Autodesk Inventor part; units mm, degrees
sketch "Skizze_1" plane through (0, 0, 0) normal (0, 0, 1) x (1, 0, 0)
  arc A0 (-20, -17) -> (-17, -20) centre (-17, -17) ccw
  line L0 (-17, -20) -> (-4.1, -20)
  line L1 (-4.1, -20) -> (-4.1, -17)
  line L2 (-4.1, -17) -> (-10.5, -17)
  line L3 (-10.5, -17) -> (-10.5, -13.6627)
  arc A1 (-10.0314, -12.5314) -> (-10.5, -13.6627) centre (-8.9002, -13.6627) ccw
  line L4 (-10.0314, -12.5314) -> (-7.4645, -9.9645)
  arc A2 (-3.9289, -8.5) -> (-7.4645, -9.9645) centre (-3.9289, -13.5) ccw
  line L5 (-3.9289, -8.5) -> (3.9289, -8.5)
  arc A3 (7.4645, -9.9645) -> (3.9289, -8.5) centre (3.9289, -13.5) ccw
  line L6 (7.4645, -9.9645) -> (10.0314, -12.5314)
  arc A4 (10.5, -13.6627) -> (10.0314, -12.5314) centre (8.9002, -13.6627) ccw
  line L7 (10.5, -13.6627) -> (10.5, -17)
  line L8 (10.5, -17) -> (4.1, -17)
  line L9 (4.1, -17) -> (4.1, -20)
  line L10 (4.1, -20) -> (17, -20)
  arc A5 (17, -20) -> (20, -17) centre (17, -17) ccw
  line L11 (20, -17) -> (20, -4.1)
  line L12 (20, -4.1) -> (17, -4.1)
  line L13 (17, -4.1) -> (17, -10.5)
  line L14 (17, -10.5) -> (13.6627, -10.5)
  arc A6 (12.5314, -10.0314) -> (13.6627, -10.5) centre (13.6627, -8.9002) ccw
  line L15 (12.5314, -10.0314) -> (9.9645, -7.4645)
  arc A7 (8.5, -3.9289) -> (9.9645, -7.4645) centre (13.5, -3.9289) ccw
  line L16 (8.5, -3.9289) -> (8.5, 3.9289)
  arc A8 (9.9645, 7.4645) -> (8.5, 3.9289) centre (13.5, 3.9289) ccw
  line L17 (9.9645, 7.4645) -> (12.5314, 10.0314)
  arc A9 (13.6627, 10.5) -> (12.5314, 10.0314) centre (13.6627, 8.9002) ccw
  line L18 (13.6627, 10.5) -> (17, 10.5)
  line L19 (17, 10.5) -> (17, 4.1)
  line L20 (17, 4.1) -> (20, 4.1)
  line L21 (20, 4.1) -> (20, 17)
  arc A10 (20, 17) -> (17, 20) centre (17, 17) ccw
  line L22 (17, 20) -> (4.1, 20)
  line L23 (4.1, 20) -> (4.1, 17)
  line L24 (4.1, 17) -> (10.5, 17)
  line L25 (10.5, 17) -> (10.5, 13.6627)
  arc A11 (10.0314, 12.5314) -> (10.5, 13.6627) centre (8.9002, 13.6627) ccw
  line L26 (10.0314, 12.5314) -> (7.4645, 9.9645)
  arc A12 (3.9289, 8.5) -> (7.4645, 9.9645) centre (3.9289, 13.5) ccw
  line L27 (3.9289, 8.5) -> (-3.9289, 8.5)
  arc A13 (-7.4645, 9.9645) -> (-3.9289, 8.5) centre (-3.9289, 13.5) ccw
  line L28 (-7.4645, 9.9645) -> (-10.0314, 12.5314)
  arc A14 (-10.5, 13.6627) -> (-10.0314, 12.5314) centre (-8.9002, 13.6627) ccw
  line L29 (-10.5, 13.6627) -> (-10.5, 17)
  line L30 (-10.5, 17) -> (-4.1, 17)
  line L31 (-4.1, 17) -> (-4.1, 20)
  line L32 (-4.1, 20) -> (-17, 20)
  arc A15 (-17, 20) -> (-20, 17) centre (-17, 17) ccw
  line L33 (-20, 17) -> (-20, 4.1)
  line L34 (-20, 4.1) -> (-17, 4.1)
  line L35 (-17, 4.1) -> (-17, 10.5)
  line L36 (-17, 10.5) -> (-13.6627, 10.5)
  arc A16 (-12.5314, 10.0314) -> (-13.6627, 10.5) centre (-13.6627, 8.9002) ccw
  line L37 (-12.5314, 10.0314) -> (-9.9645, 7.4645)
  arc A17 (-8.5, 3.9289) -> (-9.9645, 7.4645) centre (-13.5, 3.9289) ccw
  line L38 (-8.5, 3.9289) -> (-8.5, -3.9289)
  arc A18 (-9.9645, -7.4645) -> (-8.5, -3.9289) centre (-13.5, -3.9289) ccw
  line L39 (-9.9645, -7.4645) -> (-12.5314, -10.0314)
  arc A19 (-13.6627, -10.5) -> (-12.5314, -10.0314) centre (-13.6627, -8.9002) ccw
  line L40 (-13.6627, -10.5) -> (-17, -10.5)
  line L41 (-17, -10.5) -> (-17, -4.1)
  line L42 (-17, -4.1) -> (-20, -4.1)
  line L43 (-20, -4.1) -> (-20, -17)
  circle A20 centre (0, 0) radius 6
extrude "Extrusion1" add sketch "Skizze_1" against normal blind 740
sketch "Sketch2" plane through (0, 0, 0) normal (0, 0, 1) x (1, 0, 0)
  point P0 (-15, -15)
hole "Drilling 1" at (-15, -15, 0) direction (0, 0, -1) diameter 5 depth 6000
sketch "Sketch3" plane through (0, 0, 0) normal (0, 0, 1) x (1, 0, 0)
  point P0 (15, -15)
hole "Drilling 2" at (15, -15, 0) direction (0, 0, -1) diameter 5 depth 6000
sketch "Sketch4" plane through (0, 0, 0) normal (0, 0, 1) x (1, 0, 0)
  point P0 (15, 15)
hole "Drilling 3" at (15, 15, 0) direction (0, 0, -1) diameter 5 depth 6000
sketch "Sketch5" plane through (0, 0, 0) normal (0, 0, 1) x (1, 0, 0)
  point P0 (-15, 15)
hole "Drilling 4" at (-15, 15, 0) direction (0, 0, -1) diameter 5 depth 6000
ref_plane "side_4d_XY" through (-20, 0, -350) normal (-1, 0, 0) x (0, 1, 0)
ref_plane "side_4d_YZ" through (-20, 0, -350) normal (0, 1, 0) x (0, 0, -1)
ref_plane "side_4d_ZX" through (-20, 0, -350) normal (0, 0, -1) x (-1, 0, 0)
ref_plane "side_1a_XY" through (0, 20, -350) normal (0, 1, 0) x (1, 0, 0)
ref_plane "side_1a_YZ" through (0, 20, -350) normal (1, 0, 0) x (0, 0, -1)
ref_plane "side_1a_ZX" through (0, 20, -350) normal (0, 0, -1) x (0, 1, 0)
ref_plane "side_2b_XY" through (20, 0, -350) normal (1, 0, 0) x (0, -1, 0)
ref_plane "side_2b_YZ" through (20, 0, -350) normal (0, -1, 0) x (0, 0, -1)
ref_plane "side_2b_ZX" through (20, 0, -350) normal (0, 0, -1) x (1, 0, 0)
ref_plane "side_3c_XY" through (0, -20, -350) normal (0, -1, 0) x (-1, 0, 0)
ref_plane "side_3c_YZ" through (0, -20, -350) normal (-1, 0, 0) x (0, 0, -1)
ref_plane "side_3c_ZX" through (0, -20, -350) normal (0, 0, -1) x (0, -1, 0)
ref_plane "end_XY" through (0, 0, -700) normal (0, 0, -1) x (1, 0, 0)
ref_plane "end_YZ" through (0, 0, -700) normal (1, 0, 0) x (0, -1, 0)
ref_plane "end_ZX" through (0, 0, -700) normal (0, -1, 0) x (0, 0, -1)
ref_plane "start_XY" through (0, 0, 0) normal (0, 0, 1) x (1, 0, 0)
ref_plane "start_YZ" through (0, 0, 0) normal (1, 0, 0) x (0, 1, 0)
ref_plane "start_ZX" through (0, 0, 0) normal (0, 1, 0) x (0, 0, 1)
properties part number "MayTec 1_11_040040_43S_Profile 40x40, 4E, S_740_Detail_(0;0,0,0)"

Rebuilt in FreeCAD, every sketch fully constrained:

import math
import FreeCAD as App
import Part
import Sketcher

V = App.Vector
Q = App.Units.Quantity

doc = App.newDocument("Part")
body = doc.addObject("PartDesign::Body", "Body")

# Sketch on XY plane
sketch1 = body.newObject("Sketcher::SketchObject", "Sketch")
sketch1.AttachmentSupport = (doc.getObject("XY_Plane"), [""])
sketch1.MapMode = "FlatFace"
sketch1.addGeometry([
    Part.LineSegment(V(-20, -4.1, 0), V(-20, -17, 0)),  # 0
    Part.ArcOfCircle(Part.Circle(V(-17, -17, 0), V(0, 0, 1), 3), math.radians(180), math.radians(270)),  # 1
    Part.LineSegment(V(-17, -20, 0), V(-4.1, -20, 0)),  # 2
    Part.LineSegment(V(-4.1, -20, 0), V(-4.1, -17, 0)),  # 3
    Part.LineSegment(V(-4.1, -17, 0), V(-10.5, -17, 0)),  # 4
    Part.LineSegment(V(-10.5, -17, 0), V(-10.5, -13.7, 0)),  # 5
    Part.ArcOfCircle(Part.Circle(V(-8.9, -13.7, 0), V(0, 0, 1), 1.6), math.radians(135), math.radians(180)),  # 6
    Part.LineSegment(V(-10, -12.5, 0), V(-7.5, -10, 0)),  # 7
    Part.ArcOfCircle(Part.Circle(V(-3.9, -13.5, 0), V(0, 0, 1), 5), math.radians(90), math.radians(135)),  # 8
    Part.LineSegment(V(-3.9, -8.5, 0), V(3.9, -8.5, 0)),  # 9
    Part.ArcOfCircle(Part.Circle(V(3.9, -13.5, 0), V(0, 0, 1), 5), math.radians(45), math.radians(90)),  # 10
    Part.LineSegment(V(7.5, -10, 0), V(10, -12.5, 0)),  # 11
    Part.ArcOfCircle(Part.Circle(V(8.9, -13.7, 0), V(0, 0, 1), 1.6), math.radians(0), math.radians(45)),  # 12
    Part.LineSegment(V(10.5, -13.7, 0), V(10.5, -17, 0)),  # 13
    Part.LineSegment(V(10.5, -17, 0), V(4.1, -17, 0)),  # 14
    Part.LineSegment(V(4.1, -17, 0), V(4.1, -20, 0)),  # 15
    Part.LineSegment(V(4.1, -20, 0), V(17, -20, 0)),  # 16
    Part.ArcOfCircle(Part.Circle(V(17, -17, 0), V(0, 0, 1), 3), math.radians(-90), math.radians(0)),  # 17
    Part.LineSegment(V(20, -17, 0), V(20, -4.1, 0)),  # 18
    Part.LineSegment(V(20, -4.1, 0), V(17, -4.1, 0)),  # 19
    Part.LineSegment(V(17, -4.1, 0), V(17, -10.5, 0)),  # 20
    Part.LineSegment(V(17, -10.5, 0), V(13.7, -10.5, 0)),  # 21
    Part.ArcOfCircle(Part.Circle(V(13.7, -8.9, 0), V(0, 0, 1), 1.6), math.radians(-135), math.radians(-90)),  # 22
    Part.LineSegment(V(12.5, -10, 0), V(10, -7.5, 0)),  # 23
    Part.ArcOfCircle(Part.Circle(V(13.5, -3.9, 0), V(0, 0, 1), 5), math.radians(180), math.radians(225)),  # 24
    Part.LineSegment(V(8.5, -3.9, 0), V(8.5, 3.9, 0)),  # 25
    Part.ArcOfCircle(Part.Circle(V(13.5, 3.9, 0), V(0, 0, 1), 5), math.radians(135), math.radians(180)),  # 26
    Part.LineSegment(V(10, 7.5, 0), V(12.5, 10, 0)),  # 27
    Part.ArcOfCircle(Part.Circle(V(13.7, 8.9, 0), V(0, 0, 1), 1.6), math.radians(90), math.radians(135)),  # 28
    Part.LineSegment(V(13.7, 10.5, 0), V(17, 10.5, 0)),  # 29
    Part.LineSegment(V(17, 10.5, 0), V(17, 4.1, 0)),  # 30
    Part.LineSegment(V(17, 4.1, 0), V(20, 4.1, 0)),  # 31
    Part.LineSegment(V(20, 4.1, 0), V(20, 17, 0)),  # 32
    Part.ArcOfCircle(Part.Circle(V(17, 17, 0), V(0, 0, 1), 3), math.radians(0), math.radians(90)),  # 33
    Part.LineSegment(V(17, 20, 0), V(4.1, 20, 0)),  # 34
    Part.LineSegment(V(4.1, 20, 0), V(4.1, 17, 0)),  # 35
    Part.LineSegment(V(4.1, 17, 0), V(10.5, 17, 0)),  # 36
    Part.LineSegment(V(10.5, 17, 0), V(10.5, 13.7, 0)),  # 37
    Part.ArcOfCircle(Part.Circle(V(8.9, 13.7, 0), V(0, 0, 1), 1.6), math.radians(-45), math.radians(0)),  # 38
    Part.LineSegment(V(10, 12.5, 0), V(7.5, 10, 0)),  # 39
    Part.ArcOfCircle(Part.Circle(V(3.9, 13.5, 0), V(0, 0, 1), 5), math.radians(-90), math.radians(-45)),  # 40
    Part.LineSegment(V(3.9, 8.5, 0), V(-3.9, 8.5, 0)),  # 41
    Part.ArcOfCircle(Part.Circle(V(-3.9, 13.5, 0), V(0, 0, 1), 5), math.radians(-135), math.radians(-90)),  # 42
    Part.LineSegment(V(-7.5, 10, 0), V(-10, 12.5, 0)),  # 43
    Part.ArcOfCircle(Part.Circle(V(-8.9, 13.7, 0), V(0, 0, 1), 1.6), math.radians(180), math.radians(225)),  # 44
    Part.LineSegment(V(-10.5, 13.7, 0), V(-10.5, 17, 0)),  # 45
    Part.LineSegment(V(-10.5, 17, 0), V(-4.1, 17, 0)),  # 46
    Part.LineSegment(V(-4.1, 17, 0), V(-4.1, 20, 0)),  # 47
    Part.LineSegment(V(-4.1, 20, 0), V(-17, 20, 0)),  # 48
    Part.ArcOfCircle(Part.Circle(V(-17, 17, 0), V(0, 0, 1), 3), math.radians(90), math.radians(180)),  # 49
    Part.LineSegment(V(-20, 17, 0), V(-20, 4.1, 0)),  # 50
    Part.LineSegment(V(-20, 4.1, 0), V(-17, 4.1, 0)),  # 51
    Part.LineSegment(V(-17, 4.1, 0), V(-17, 10.5, 0)),  # 52
    Part.LineSegment(V(-17, 10.5, 0), V(-13.7, 10.5, 0)),  # 53
    Part.ArcOfCircle(Part.Circle(V(-13.7, 8.9, 0), V(0, 0, 1), 1.6), math.radians(45), math.radians(90)),  # 54
    Part.LineSegment(V(-12.5, 10, 0), V(-10, 7.5, 0)),  # 55
    Part.ArcOfCircle(Part.Circle(V(-13.5, 3.9, 0), V(0, 0, 1), 5), math.radians(0), math.radians(45)),  # 56
    Part.LineSegment(V(-8.5, 3.9, 0), V(-8.5, -3.9, 0)),  # 57
    Part.ArcOfCircle(Part.Circle(V(-13.5, -3.9, 0), V(0, 0, 1), 5), math.radians(-45), math.radians(0)),  # 58
    Part.LineSegment(V(-10, -7.5, 0), V(-12.5, -10, 0)),  # 59
    Part.ArcOfCircle(Part.Circle(V(-13.7, -8.9, 0), V(0, 0, 1), 1.6), math.radians(-90), math.radians(-45)),  # 60
    Part.LineSegment(V(-13.7, -10.5, 0), V(-17, -10.5, 0)),  # 61
    Part.LineSegment(V(-17, -10.5, 0), V(-17, -4.1, 0)),  # 62
    Part.LineSegment(V(-17, -4.1, 0), V(-20, -4.1, 0)),  # 63
    Part.Circle(V(0, 0, 0), V(0, 0, 1), 6),  # 64
], False)
sketch1.addConstraint([
    Sketcher.Constraint("Tangent", 0, 2, 1, 1),
    Sketcher.Constraint("Tangent", 1, 2, 2, 1),
    Sketcher.Constraint("Coincident", 2, 2, 3, 1),
    Sketcher.Constraint("Coincident", 3, 2, 4, 1),
    Sketcher.Constraint("Coincident", 4, 2, 5, 1),
    Sketcher.Constraint("Tangent", 5, 2, 6, 2),
    Sketcher.Constraint("Tangent", 6, 1, 7, 1),
    Sketcher.Constraint("Tangent", 7, 2, 8, 2),
    Sketcher.Constraint("Tangent", 8, 1, 9, 1),
    Sketcher.Constraint("Tangent", 9, 2, 10, 2),
    Sketcher.Constraint("Tangent", 10, 1, 11, 1),
    Sketcher.Constraint("Tangent", 11, 2, 12, 2),
    Sketcher.Constraint("Tangent", 12, 1, 13, 1),
    Sketcher.Constraint("Coincident", 13, 2, 14, 1),
    Sketcher.Constraint("Coincident", 14, 2, 15, 1),
    Sketcher.Constraint("Coincident", 15, 2, 16, 1),
    Sketcher.Constraint("Tangent", 16, 2, 17, 1),
    Sketcher.Constraint("Tangent", 17, 2, 18, 1),
    Sketcher.Constraint("Coincident", 18, 2, 19, 1),
    Sketcher.Constraint("Coincident", 19, 2, 20, 1),
    Sketcher.Constraint("Coincident", 20, 2, 21, 1),
    Sketcher.Constraint("Tangent", 21, 2, 22, 2),
    Sketcher.Constraint("Tangent", 22, 1, 23, 1),
    Sketcher.Constraint("Tangent", 23, 2, 24, 2),
    Sketcher.Constraint("Tangent", 24, 1, 25, 1),
    Sketcher.Constraint("Tangent", 25, 2, 26, 2),
    Sketcher.Constraint("Tangent", 26, 1, 27, 1),
    Sketcher.Constraint("Tangent", 27, 2, 28, 2),
    Sketcher.Constraint("Tangent", 28, 1, 29, 1),
    Sketcher.Constraint("Coincident", 29, 2, 30, 1),
    Sketcher.Constraint("Coincident", 30, 2, 31, 1),
    Sketcher.Constraint("Coincident", 31, 2, 32, 1),
    Sketcher.Constraint("Tangent", 32, 2, 33, 1),
    Sketcher.Constraint("Tangent", 33, 2, 34, 1),
    Sketcher.Constraint("Coincident", 34, 2, 35, 1),
    Sketcher.Constraint("Coincident", 35, 2, 36, 1),
    Sketcher.Constraint("Coincident", 36, 2, 37, 1),
    Sketcher.Constraint("Tangent", 37, 2, 38, 2),
    Sketcher.Constraint("Tangent", 38, 1, 39, 1),
    Sketcher.Constraint("Tangent", 39, 2, 40, 2),
    Sketcher.Constraint("Tangent", 40, 1, 41, 1),
    Sketcher.Constraint("Tangent", 41, 2, 42, 2),
    Sketcher.Constraint("Tangent", 42, 1, 43, 1),
    Sketcher.Constraint("Tangent", 43, 2, 44, 2),
    Sketcher.Constraint("Tangent", 44, 1, 45, 1),
    Sketcher.Constraint("Coincident", 45, 2, 46, 1),
    Sketcher.Constraint("Coincident", 46, 2, 47, 1),
    Sketcher.Constraint("Coincident", 47, 2, 48, 1),
    Sketcher.Constraint("Tangent", 48, 2, 49, 1),
    Sketcher.Constraint("Tangent", 49, 2, 50, 1),
    Sketcher.Constraint("Coincident", 50, 2, 51, 1),
    Sketcher.Constraint("Coincident", 51, 2, 52, 1),
    Sketcher.Constraint("Coincident", 52, 2, 53, 1),
    Sketcher.Constraint("Tangent", 53, 2, 54, 2),
    Sketcher.Constraint("Tangent", 54, 1, 55, 1),
    Sketcher.Constraint("Tangent", 55, 2, 56, 2),
    Sketcher.Constraint("Tangent", 56, 1, 57, 1),
    Sketcher.Constraint("Tangent", 57, 2, 58, 2),
    Sketcher.Constraint("Tangent", 58, 1, 59, 1),
    Sketcher.Constraint("Tangent", 59, 2, 60, 2),
    Sketcher.Constraint("Tangent", 60, 1, 61, 1),
    Sketcher.Constraint("Coincident", 61, 2, 62, 1),
    Sketcher.Constraint("Coincident", 62, 2, 63, 1),
    Sketcher.Constraint("Coincident", 63, 2, 0, 1),
    Sketcher.Constraint("Vertical", 0),
    Sketcher.Constraint("Horizontal", 2),
    Sketcher.Constraint("Vertical", 3),
    Sketcher.Constraint("Horizontal", 4),
    Sketcher.Constraint("Vertical", 5),
    Sketcher.Constraint("Horizontal", 9),
    Sketcher.Constraint("Vertical", 13),
    Sketcher.Constraint("Horizontal", 14),
    Sketcher.Constraint("Vertical", 15),
    Sketcher.Constraint("Horizontal", 16),
    Sketcher.Constraint("Vertical", 18),
    Sketcher.Constraint("Horizontal", 19),
    Sketcher.Constraint("Vertical", 20),
    Sketcher.Constraint("Horizontal", 21),
    Sketcher.Constraint("Vertical", 25),
    Sketcher.Constraint("Horizontal", 29),
    Sketcher.Constraint("Vertical", 30),
    Sketcher.Constraint("Horizontal", 31),
    Sketcher.Constraint("Vertical", 32),
    Sketcher.Constraint("Horizontal", 34),
    Sketcher.Constraint("Vertical", 35),
    Sketcher.Constraint("Horizontal", 36),
    Sketcher.Constraint("Vertical", 37),
    Sketcher.Constraint("Horizontal", 41),
    Sketcher.Constraint("Vertical", 45),
    Sketcher.Constraint("Horizontal", 46),
    Sketcher.Constraint("Vertical", 47),
    Sketcher.Constraint("Horizontal", 48),
    Sketcher.Constraint("Vertical", 50),
    Sketcher.Constraint("Horizontal", 51),
    Sketcher.Constraint("Vertical", 52),
    Sketcher.Constraint("Horizontal", 53),
    Sketcher.Constraint("Vertical", 57),
    Sketcher.Constraint("Horizontal", 61),
    Sketcher.Constraint("Vertical", 62),
    Sketcher.Constraint("Horizontal", 63),
    Sketcher.Constraint("Coincident", 64, 3, -1, 1),
    Sketcher.Constraint("Equal", 8, 10),
    Sketcher.Constraint("Equal", 6, 12),
    Sketcher.Constraint("Equal", 1, 17),
    Sketcher.Constraint("Equal", 12, 22),
    Sketcher.Constraint("Equal", 10, 24),
    Sketcher.Constraint("Equal", 24, 26),
    Sketcher.Constraint("Equal", 22, 28),
    Sketcher.Constraint("Equal", 17, 33),
    Sketcher.Constraint("Equal", 28, 38),
    Sketcher.Constraint("Equal", 26, 40),
    Sketcher.Constraint("Equal", 40, 42),
    Sketcher.Constraint("Equal", 38, 44),
    Sketcher.Constraint("Equal", 33, 49),
    Sketcher.Constraint("Equal", 44, 54),
    Sketcher.Constraint("Equal", 42, 56),
    Sketcher.Constraint("Equal", 56, 58),
    Sketcher.Constraint("Equal", 54, 60),
    Sketcher.Constraint("Symmetric", 1, 3, 33, 3, -1, 1),
    Sketcher.Constraint("Symmetric", 6, 3, 38, 3, -1, 1),
    Sketcher.Constraint("Symmetric", 8, 3, 40, 3, -1, 1),
    Sketcher.Constraint("Symmetric", 12, 3, 44, 3, -1, 1),
    Sketcher.Constraint("Symmetric", 17, 3, 49, 3, -1, 1),
    Sketcher.Constraint("Symmetric", 22, 3, 54, 3, -1, 1),
    Sketcher.Constraint("Symmetric", 24, 3, 56, 3, -1, 1),
    Sketcher.Constraint("Symmetric", 28, 3, 60, 3, -1, 1),
    Sketcher.Constraint("Symmetric", 3, 2, 35, 2, -1, 1),
    Sketcher.Constraint("Symmetric", 14, 2, 46, 2, -1, 1),
    Sketcher.Constraint("Symmetric", 19, 2, 51, 2, -1, 1),
    Sketcher.Constraint("Symmetric", 30, 2, 62, 2, -1, 1),
    Sketcher.Constraint("Symmetric", 6, 3, 12, 3, -2),
    Sketcher.Constraint("Symmetric", 1, 3, 17, 3, -2),
    Sketcher.Constraint("Symmetric", 28, 3, 54, 3, -2),
    Sketcher.Constraint("Symmetric", 3, 2, 14, 2, -2),
    Sketcher.Constraint("Symmetric", 30, 2, 51, 2, -2),
    Sketcher.Constraint("Perpendicular", 7, 11),
    Sketcher.Constraint("Parallel", 11, 23),
    Sketcher.Constraint("Perpendicular", 23, 27),
    Sketcher.Constraint("Perpendicular", 39, 43),
    Sketcher.Constraint("Perpendicular", 55, 59),
    Sketcher.Constraint("Horizontal", 26, 3, 56, 3),
    Sketcher.Constraint("Horizontal", 0, 2, 3, 2),
    Sketcher.Constraint("Vertical", 16, 2, 19, 2),
    Sketcher.Constraint("Equal", 48, 0),
    Sketcher.Constraint("Equal", 61, 5),
    Sketcher.Constraint("Equal", 46, 20),
    Sketcher.Constraint("Equal", 41, 25),
    Sketcher.Constraint("Equal", 11, 23),
    Sketcher.Constraint("Diameter", 64, Q("12 mm")),
    Sketcher.Constraint("Radius", 1, Q("3 mm")),
    Sketcher.Constraint("Radius", 8, Q("5 mm")),
    Sketcher.Constraint("DistanceX", 2, 1, 2, 2, Q("12.9 mm")),
    Sketcher.Constraint("DistanceX", 4, 2, 4, 1, Q("6.4 mm")),
    Sketcher.Constraint("DistanceX", 1, 3, -1, 1, Q("17 mm")),
    Sketcher.Constraint("DistanceY", 8, 3, -1, 1, Q("13.5 mm")),
    Sketcher.Constraint("Radius", 6, Q("1.5998 mm")),
    Sketcher.Constraint("DistanceX", 9, 1, 9, 2, Q("7.8578 mm")),
])
pad1 = body.newObject("PartDesign::Pad", "Pad")
pad1.Profile = sketch1
pad1.Length = 740
pad1.Reversed = True

# Sketch on XY plane
sketch2 = body.newObject("Sketcher::SketchObject", "Sketch001")
sketch2.AttachmentSupport = (doc.getObject("XY_Plane"), [""])
sketch2.MapMode = "FlatFace"
sketch2.addGeometry(Part.Circle(V(-15, -15, 0), V(0, 0, 1), 2.5), False)
sketch2.addConstraint([
    Sketcher.Constraint("Diameter", 0, Q("5 mm")),
    Sketcher.Constraint("DistanceX", 0, 3, -1, 1, Q("15 mm")),
    Sketcher.Constraint("DistanceY", 0, 3, -1, 1, Q("15 mm")),
])
doc.recompute()
hole = body.newObject("PartDesign::Hole", "Hole")
hole.Profile = sketch2
hole.ThreadType = "None"
hole.Diameter = 5
hole.DepthType = "Dimension"
hole.Depth = 6000
hole.DrillPoint = "Flat"

# Sketch on XY plane
sketch3 = body.newObject("Sketcher::SketchObject", "Sketch002")
sketch3.AttachmentSupport = (doc.getObject("XY_Plane"), [""])
sketch3.MapMode = "FlatFace"
sketch3.addGeometry(Part.Circle(V(15, -15, 0), V(0, 0, 1), 2.5), False)
sketch3.addConstraint([
    Sketcher.Constraint("Diameter", 0, Q("5 mm")),
    Sketcher.Constraint("DistanceX", -1, 1, 0, 3, Q("15 mm")),
    Sketcher.Constraint("DistanceY", 0, 3, -1, 1, Q("15 mm")),
])
doc.recompute()
hole2 = body.newObject("PartDesign::Hole", "Hole001")
hole2.Profile = sketch3
hole2.ThreadType = "None"
hole2.Diameter = 5
hole2.DepthType = "Dimension"
hole2.Depth = 6000
hole2.DrillPoint = "Flat"

# Sketch on XY plane
sketch4 = body.newObject("Sketcher::SketchObject", "Sketch003")
sketch4.AttachmentSupport = (doc.getObject("XY_Plane"), [""])
sketch4.MapMode = "FlatFace"
sketch4.addGeometry(Part.Circle(V(15, 15, 0), V(0, 0, 1), 2.5), False)
sketch4.addConstraint([
    Sketcher.Constraint("Diameter", 0, Q("5 mm")),
    Sketcher.Constraint("DistanceX", -1, 1, 0, 3, Q("15 mm")),
    Sketcher.Constraint("DistanceY", -1, 1, 0, 3, Q("15 mm")),
])
doc.recompute()
hole3 = body.newObject("PartDesign::Hole", "Hole002")
hole3.Profile = sketch4
hole3.ThreadType = "None"
hole3.Diameter = 5
hole3.DepthType = "Dimension"
hole3.Depth = 6000
hole3.DrillPoint = "Flat"

# Sketch on XY plane
sketch5 = body.newObject("Sketcher::SketchObject", "Sketch004")
sketch5.AttachmentSupport = (doc.getObject("XY_Plane"), [""])
sketch5.MapMode = "FlatFace"
sketch5.addGeometry(Part.Circle(V(-15, 15, 0), V(0, 0, 1), 2.5), False)
sketch5.addConstraint([
    Sketcher.Constraint("Diameter", 0, Q("5 mm")),
    Sketcher.Constraint("DistanceX", 0, 3, -1, 1, Q("15 mm")),
    Sketcher.Constraint("DistanceY", -1, 1, 0, 3, Q("15 mm")),
])
doc.recompute()
hole4 = body.newObject("PartDesign::Hole", "Hole003")
hole4.Profile = sketch5
hole4.ThreadType = "None"
hole4.Diameter = 5
hole4.DepthType = "Dimension"
hole4.Depth = 6000
hole4.DrillPoint = "Flat"

doc.recompute()
